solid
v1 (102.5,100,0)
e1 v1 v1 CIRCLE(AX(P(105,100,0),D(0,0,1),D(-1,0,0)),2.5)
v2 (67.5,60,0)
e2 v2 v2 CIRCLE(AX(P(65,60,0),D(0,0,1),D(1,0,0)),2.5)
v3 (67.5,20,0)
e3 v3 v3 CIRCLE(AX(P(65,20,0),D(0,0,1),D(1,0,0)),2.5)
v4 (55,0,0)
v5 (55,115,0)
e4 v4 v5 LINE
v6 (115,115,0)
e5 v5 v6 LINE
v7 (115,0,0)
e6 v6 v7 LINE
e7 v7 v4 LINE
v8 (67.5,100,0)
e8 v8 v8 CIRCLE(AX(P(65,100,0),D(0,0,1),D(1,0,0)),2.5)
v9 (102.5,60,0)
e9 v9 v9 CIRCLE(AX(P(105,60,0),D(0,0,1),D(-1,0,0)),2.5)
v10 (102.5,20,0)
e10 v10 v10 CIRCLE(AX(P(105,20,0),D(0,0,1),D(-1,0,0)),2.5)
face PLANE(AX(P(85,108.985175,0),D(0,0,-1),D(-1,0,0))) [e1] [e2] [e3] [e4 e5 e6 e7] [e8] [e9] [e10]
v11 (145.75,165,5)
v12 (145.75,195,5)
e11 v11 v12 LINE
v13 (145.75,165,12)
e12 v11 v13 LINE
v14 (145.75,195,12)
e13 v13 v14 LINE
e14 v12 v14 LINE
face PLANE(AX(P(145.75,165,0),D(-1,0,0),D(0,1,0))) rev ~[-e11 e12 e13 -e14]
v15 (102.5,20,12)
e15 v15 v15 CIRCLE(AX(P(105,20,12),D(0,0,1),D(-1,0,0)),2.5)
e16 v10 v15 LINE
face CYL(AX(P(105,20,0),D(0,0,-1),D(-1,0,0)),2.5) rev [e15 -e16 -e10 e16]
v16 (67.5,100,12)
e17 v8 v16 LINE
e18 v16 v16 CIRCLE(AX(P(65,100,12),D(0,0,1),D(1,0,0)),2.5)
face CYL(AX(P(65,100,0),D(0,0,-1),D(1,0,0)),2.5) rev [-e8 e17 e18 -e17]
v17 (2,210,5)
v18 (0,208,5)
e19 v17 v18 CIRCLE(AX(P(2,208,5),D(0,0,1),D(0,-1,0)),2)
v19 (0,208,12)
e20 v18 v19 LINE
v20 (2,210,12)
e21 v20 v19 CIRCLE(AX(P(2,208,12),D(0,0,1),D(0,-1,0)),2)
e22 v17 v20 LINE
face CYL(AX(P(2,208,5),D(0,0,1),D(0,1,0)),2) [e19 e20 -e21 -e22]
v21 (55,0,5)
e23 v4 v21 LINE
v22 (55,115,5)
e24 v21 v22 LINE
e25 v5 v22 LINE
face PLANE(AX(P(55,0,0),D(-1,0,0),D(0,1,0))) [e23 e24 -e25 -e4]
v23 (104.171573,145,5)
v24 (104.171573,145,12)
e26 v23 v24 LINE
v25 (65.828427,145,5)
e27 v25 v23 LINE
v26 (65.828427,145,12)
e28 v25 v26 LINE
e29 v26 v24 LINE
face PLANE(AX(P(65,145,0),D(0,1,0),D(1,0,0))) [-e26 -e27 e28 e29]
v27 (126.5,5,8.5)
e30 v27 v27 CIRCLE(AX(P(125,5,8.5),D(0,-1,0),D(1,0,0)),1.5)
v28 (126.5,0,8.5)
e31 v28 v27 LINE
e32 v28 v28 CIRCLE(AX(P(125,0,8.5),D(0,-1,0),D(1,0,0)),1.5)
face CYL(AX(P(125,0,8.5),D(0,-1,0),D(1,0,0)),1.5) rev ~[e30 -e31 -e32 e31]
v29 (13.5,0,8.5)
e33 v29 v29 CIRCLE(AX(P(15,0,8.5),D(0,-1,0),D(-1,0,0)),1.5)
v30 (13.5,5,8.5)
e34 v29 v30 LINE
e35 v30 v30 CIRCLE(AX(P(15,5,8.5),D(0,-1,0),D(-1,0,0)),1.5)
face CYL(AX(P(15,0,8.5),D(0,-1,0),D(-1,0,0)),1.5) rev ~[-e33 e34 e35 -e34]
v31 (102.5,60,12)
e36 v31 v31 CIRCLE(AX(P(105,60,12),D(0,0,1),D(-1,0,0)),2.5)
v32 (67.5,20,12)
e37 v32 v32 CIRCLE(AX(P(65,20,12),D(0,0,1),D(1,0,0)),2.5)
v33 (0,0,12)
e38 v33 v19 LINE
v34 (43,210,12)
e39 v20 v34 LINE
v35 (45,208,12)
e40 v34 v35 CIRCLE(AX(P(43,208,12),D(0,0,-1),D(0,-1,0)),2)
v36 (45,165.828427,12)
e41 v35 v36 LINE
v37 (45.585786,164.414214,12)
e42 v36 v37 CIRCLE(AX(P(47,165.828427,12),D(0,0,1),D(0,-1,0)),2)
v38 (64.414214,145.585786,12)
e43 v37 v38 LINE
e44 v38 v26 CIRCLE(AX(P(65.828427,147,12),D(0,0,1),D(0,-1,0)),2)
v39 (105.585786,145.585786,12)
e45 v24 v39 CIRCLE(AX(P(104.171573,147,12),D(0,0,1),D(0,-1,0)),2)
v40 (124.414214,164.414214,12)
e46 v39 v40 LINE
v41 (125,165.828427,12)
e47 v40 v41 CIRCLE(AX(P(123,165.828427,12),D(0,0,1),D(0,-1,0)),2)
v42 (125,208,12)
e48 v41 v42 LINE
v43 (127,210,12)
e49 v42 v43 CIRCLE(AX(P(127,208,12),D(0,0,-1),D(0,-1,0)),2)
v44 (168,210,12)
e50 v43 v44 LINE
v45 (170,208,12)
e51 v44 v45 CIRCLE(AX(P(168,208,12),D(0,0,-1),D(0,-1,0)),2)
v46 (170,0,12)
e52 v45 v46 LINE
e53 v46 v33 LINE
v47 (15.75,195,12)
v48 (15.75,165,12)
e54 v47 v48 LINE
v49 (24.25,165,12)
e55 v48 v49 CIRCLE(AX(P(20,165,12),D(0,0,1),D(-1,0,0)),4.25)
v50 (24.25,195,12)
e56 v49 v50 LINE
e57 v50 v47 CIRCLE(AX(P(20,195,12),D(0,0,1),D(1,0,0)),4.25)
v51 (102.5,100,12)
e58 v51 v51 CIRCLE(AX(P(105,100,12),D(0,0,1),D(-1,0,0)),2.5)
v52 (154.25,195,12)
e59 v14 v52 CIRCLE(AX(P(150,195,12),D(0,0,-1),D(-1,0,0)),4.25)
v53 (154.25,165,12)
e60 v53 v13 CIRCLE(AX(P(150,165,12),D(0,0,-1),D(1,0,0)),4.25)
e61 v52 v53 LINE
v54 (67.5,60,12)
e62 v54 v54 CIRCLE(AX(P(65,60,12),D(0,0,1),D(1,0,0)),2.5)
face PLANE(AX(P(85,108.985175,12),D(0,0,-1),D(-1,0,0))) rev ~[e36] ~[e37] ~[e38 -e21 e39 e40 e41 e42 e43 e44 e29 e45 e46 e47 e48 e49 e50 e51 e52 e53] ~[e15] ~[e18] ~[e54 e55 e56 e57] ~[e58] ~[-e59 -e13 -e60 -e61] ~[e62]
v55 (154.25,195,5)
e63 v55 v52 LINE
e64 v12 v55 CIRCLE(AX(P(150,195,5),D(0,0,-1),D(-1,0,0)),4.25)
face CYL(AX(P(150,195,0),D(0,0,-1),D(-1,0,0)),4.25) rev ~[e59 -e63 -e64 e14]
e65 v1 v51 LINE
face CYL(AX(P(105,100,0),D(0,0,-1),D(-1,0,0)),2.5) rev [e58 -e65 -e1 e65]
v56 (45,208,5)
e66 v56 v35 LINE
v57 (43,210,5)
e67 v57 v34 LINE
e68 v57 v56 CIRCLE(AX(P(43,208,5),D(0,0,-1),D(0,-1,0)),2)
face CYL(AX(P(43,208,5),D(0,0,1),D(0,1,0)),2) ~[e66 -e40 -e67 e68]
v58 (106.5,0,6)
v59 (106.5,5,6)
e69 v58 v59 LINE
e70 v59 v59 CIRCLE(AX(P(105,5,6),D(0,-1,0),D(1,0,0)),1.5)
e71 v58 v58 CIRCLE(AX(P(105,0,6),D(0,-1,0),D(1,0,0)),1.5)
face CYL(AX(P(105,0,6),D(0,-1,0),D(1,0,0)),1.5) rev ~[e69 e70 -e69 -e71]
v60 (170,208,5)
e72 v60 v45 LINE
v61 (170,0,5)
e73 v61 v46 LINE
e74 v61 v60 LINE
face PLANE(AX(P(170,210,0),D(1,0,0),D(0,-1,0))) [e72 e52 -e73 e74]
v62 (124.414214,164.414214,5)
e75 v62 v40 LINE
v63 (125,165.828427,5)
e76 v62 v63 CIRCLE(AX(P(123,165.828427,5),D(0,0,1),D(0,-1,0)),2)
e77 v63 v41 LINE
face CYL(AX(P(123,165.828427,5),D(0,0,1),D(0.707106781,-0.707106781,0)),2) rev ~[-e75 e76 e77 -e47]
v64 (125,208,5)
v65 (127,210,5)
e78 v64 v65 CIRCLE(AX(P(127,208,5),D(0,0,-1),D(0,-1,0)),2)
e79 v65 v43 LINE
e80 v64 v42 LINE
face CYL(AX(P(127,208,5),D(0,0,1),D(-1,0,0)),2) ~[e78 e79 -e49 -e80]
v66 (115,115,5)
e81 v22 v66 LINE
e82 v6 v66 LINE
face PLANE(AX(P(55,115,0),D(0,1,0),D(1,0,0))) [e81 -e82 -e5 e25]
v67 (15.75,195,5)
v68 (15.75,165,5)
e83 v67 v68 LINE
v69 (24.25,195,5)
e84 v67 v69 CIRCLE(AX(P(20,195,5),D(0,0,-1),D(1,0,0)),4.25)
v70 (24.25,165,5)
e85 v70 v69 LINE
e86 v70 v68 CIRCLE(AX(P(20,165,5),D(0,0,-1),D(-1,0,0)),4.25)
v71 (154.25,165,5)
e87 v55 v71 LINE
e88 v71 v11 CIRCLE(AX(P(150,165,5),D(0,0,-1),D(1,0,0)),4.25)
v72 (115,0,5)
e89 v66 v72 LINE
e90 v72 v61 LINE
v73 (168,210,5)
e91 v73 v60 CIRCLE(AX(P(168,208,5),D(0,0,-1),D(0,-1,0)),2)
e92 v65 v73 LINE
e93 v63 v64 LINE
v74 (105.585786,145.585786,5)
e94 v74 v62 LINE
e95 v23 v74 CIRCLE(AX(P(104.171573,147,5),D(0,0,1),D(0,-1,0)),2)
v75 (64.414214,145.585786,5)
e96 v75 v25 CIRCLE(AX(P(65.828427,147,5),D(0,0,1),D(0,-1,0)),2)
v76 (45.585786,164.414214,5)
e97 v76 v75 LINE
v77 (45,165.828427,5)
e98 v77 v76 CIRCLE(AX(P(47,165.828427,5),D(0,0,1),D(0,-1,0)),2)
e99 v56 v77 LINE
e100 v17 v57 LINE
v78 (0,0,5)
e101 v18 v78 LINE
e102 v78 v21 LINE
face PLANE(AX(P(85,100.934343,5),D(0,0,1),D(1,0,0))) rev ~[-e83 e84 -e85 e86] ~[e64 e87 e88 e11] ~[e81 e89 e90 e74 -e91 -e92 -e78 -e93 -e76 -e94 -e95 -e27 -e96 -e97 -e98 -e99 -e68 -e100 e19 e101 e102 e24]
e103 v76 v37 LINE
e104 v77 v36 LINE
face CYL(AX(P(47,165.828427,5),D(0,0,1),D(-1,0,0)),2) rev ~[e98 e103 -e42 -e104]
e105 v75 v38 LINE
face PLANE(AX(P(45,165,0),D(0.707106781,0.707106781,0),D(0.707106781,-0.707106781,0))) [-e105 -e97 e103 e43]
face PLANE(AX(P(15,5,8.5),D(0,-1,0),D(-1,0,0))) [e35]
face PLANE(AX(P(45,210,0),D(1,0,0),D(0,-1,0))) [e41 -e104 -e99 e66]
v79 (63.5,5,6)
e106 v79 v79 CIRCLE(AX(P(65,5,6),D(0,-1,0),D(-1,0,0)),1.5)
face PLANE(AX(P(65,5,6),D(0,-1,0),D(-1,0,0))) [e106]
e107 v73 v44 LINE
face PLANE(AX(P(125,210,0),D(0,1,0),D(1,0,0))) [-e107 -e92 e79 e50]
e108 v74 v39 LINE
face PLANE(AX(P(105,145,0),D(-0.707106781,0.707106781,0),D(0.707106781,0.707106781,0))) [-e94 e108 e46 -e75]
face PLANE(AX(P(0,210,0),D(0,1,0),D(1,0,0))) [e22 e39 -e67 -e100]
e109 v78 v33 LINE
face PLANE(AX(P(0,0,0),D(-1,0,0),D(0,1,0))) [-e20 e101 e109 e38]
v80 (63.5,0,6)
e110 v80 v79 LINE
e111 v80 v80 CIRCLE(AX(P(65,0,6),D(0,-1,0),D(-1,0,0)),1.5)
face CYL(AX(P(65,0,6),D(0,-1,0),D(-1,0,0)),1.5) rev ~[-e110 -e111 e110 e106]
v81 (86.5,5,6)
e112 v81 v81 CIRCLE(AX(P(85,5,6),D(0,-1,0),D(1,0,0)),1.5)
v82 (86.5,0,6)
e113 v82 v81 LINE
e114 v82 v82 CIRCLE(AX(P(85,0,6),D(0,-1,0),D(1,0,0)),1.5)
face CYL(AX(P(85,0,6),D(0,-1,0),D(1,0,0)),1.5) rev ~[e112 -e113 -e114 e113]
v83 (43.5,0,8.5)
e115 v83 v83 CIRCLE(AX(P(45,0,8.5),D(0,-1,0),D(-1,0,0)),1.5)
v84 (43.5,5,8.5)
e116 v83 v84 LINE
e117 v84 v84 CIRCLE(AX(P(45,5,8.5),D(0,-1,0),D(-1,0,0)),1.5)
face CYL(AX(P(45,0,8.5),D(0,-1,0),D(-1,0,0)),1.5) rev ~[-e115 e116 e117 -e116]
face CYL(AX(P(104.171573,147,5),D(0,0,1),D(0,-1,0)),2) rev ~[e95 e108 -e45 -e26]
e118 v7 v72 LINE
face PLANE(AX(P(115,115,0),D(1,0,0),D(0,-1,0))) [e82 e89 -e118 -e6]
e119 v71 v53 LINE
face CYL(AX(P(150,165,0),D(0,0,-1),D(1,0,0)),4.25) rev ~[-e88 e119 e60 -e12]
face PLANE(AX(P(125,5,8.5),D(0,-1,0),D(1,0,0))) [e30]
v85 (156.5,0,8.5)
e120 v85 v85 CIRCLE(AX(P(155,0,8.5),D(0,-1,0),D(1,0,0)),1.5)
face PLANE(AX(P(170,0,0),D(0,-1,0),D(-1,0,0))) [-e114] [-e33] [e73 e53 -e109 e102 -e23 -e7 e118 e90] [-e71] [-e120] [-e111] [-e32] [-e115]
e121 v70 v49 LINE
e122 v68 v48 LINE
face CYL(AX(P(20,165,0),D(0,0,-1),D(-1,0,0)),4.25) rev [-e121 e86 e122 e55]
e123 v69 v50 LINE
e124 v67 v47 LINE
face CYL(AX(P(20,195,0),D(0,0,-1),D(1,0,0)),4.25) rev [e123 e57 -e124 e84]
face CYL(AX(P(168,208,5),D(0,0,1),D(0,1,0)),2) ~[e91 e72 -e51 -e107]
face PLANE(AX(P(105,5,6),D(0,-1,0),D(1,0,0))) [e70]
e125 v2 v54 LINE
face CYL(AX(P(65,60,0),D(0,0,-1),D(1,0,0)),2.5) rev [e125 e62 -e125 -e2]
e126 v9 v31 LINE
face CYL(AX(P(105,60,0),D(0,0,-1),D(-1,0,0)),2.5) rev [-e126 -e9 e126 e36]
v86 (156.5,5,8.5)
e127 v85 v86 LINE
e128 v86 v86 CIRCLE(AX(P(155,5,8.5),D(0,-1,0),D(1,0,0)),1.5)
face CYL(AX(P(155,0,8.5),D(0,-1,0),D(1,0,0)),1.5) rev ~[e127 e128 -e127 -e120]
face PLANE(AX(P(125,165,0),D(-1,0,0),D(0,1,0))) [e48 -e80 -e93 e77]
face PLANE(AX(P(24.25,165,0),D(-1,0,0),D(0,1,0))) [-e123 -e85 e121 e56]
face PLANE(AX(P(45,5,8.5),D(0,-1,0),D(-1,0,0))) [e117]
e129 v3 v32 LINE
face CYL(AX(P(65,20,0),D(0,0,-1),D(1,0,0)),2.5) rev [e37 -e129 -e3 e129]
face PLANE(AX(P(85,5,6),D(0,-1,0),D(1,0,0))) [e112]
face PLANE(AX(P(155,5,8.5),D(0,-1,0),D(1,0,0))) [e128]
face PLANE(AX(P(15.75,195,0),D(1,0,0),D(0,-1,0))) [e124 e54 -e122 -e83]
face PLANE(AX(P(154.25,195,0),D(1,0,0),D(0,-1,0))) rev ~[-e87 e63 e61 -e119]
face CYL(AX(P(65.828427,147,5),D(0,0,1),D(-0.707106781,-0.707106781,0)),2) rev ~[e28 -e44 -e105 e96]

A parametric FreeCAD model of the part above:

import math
import FreeCAD as App
import Part
import Sketcher
Q = App.Units.Quantity


def edges_at(feature, points):
    """Names of the edges that pass closest to the given points."""
    edges = feature.Shape.Edges
    near = lambda p: min(range(len(edges)), key=lambda i: edges[i].distToShape(Part.Vertex(*p))[0])
    return sorted({f"Edge{near(p) + 1}" for p in points})


def add_polygon(sketch, points):
    """Adds a closed chain of lines whose ends are joined by coincident constraints."""
    first, n = sketch.GeometryCount, len(points)
    for a, b in zip(points, points[1:] + points[:1]):
        sketch.addGeometry(Part.LineSegment(App.Vector(*a, 0), App.Vector(*b, 0)), False)
    for i in range(n):
        sketch.addConstraint(Sketcher.Constraint("Coincident", first + i, 2, first + (i + 1) % n, 1))

doc = App.newDocument("Part")
params = doc.addObject("Spreadsheet::Sheet", "Params")
for row, (alias, value) in enumerate([
    ("sketch1_diameter", "5 mm"),
    ("sketch1_width", "45 mm"),
    ("sketch1_width2", "170 mm"),
    ("sketch1_width3", "40 mm"),
    ("sketch1_height", "210 mm"),
    ("pad1_length", "12 mm"),
    ("sketch2_width", "55 mm"),
    ("sketch2_width2", "170 mm"),
    ("sketch2_height", "210 mm"),
    ("sketch2_height2", "115 mm"),
    ("pocket1_length", "5 mm"),
    ("fillet_radius", "2 mm"),
    ("sketch3_diameter", "3 mm"),
    ("pocket2_length", "5 mm"),
], start=1):
    params.set(f"A{row}", alias)
    params.set(f"B{row}", "=" + value)
    params.setAlias(f"B{row}", alias)

body = doc.addObject("PartDesign::Body", "Body")

sketch1 = body.newObject("Sketcher::SketchObject", "Sketch")
sketch1.AttachmentSupport = (doc.getObject("XY_Plane"), [""])
sketch1.MapMode = "FlatFace"
add_polygon(sketch1, [(45, 210), (0, 210), (0, 0), (170, 0), (170, 210), (125, 210), (125, 165), (105, 145), (65, 145), (45, 165)])
sketch1.addGeometry(Part.Circle(App.Vector(105, 20, 0), App.Vector(0, 0, 1), 2.5), False)
sketch1.addGeometry(Part.Circle(App.Vector(105, 60, 0), App.Vector(0, 0, 1), 2.5), False)
sketch1.addGeometry(Part.Circle(App.Vector(105, 100, 0), App.Vector(0, 0, 1), 2.5), False)
sketch1.addGeometry(Part.Circle(App.Vector(65, 20, 0), App.Vector(0, 0, 1), 2.5), False)
sketch1.addGeometry(Part.Circle(App.Vector(65, 60, 0), App.Vector(0, 0, 1), 2.5), False)
sketch1.addGeometry(Part.Circle(App.Vector(65, 100, 0), App.Vector(0, 0, 1), 2.5), False)
sketch1.addGeometry(Part.LineSegment(App.Vector(154.2, 195, 0), App.Vector(154.2, 165, 0)), False)
sketch1.addGeometry(Part.ArcOfCircle(Part.Circle(App.Vector(150, 165, 0), App.Vector(0, 0, 1), 4.2), math.radians(180), math.radians(360)), False)
sketch1.addGeometry(Part.LineSegment(App.Vector(145.8, 165, 0), App.Vector(145.8, 195, 0)), False)
sketch1.addGeometry(Part.ArcOfCircle(Part.Circle(App.Vector(150, 195, 0), App.Vector(0, 0, 1), 4.2), math.radians(0), math.radians(180)), False)
sketch1.addGeometry(Part.ArcOfCircle(Part.Circle(App.Vector(20, 195, 0), App.Vector(0, 0, 1), 4.2), math.radians(0), math.radians(180)), False)
sketch1.addGeometry(Part.LineSegment(App.Vector(24.2, 195, 0), App.Vector(24.2, 165, 0)), False)
sketch1.addGeometry(Part.ArcOfCircle(Part.Circle(App.Vector(20, 165, 0), App.Vector(0, 0, 1), 4.2), math.radians(180), math.radians(360)), False)
sketch1.addGeometry(Part.LineSegment(App.Vector(15.8, 165, 0), App.Vector(15.8, 195, 0)), False)
sketch1.addConstraint([
    Sketcher.Constraint("Tangent", 16, 2, 17, 2),
    Sketcher.Constraint("Tangent", 17, 1, 18, 1),
    Sketcher.Constraint("Tangent", 18, 2, 19, 2),
    Sketcher.Constraint("Tangent", 19, 1, 16, 1),
    Sketcher.Constraint("Tangent", 20, 1, 21, 1),
    Sketcher.Constraint("Tangent", 21, 2, 22, 2),
    Sketcher.Constraint("Tangent", 22, 1, 23, 1),
    Sketcher.Constraint("Tangent", 23, 2, 20, 2),
    Sketcher.Constraint("Horizontal", 0),
    Sketcher.Constraint("Vertical", 1),
    Sketcher.Constraint("Horizontal", 2),
    Sketcher.Constraint("Vertical", 3),
    Sketcher.Constraint("Horizontal", 4),
    Sketcher.Constraint("Vertical", 5),
    Sketcher.Constraint("Horizontal", 7),
    Sketcher.Constraint("Vertical", 9),
    Sketcher.Constraint("Vertical", 16),
    Sketcher.Constraint("Vertical", 18),
    Sketcher.Constraint("Vertical", 21),
    Sketcher.Constraint("Vertical", 23),
    Sketcher.Constraint("Coincident", 1, 2, -1, 1),
    Sketcher.Constraint("Equal", 10, 11),
    Sketcher.Constraint("Equal", 11, 12),
    Sketcher.Constraint("Equal", 12, 13),
    Sketcher.Constraint("Equal", 13, 14),
    Sketcher.Constraint("Equal", 14, 15),
    Sketcher.Constraint("Equal", 19, 20),
    Sketcher.Constraint("Perpendicular", 6, 8),
    Sketcher.Constraint("Horizontal", 10, 3, 13, 3),
    Sketcher.Constraint("Horizontal", 11, 3, 14, 3),
    Sketcher.Constraint("Horizontal", 12, 3, 15, 3),
    Sketcher.Constraint("Horizontal", 19, 3, 20, 3),
    Sketcher.Constraint("Horizontal", 17, 3, 22, 3),
    Sketcher.Constraint("Horizontal", 0, 2, 3, 2),
    Sketcher.Constraint("Horizontal", 22, 3, 5, 2),
    Sketcher.Constraint("Horizontal", 5, 2, 8, 2),
    Sketcher.Constraint("Vertical", 10, 3, 11, 3),
    Sketcher.Constraint("Vertical", 11, 3, 12, 3),
    Sketcher.Constraint("Vertical", 13, 3, 14, 3),
    Sketcher.Constraint("Vertical", 14, 3, 15, 3),
    Sketcher.Constraint("Vertical", 12, 3, 6, 2),
    Sketcher.Constraint("Vertical", 15, 3, 7, 2),
    Sketcher.Constraint("Equal", 0, 4),
    Sketcher.Constraint("Equal", 4, 5),
    Sketcher.Constraint("Equal", 6, 8),
    Sketcher.Constraint("Diameter", 10, Q("5 mm")),
    Sketcher.Constraint("DistanceX", 0, 2, 0, 1, Q("45 mm")),
    Sketcher.Constraint("DistanceX", 2, 1, 2, 2, Q("170 mm")),
    Sketcher.Constraint("DistanceX", 7, 2, 7, 1, Q("40 mm")),
    Sketcher.Constraint("DistanceY", 1, 2, 1, 1, Q("210 mm")),
    Sketcher.Constraint("DistanceY", 16, 2, 16, 1, Q("30 mm")),
    Sketcher.Constraint("Radius", 17, Q("4.25 mm")),
    Sketcher.Constraint("DistanceY", -1, 1, 10, 3, Q("20 mm")),
    Sketcher.Constraint("DistanceY", -1, 1, 11, 3, Q("60 mm")),
    Sketcher.Constraint("DistanceY", -1, 1, 12, 3, Q("100 mm")),
    Sketcher.Constraint("DistanceX", -1, 1, 17, 3, Q("150 mm")),
    Sketcher.Constraint("DistanceX", -1, 1, 20, 3, Q("20 mm")),
])
sketch1.setExpression("Constraints[55]", "Params.sketch1_diameter")
sketch1.setExpression("Constraints[56]", "Params.sketch1_width")
sketch1.setExpression("Constraints[57]", "Params.sketch1_width2")
sketch1.setExpression("Constraints[58]", "Params.sketch1_width3")
sketch1.setExpression("Constraints[59]", "Params.sketch1_height")
pad1 = body.newObject("PartDesign::Pad", "Pad")
pad1.Profile = sketch1
pad1.setExpression("Length", "Params.pad1_length")

sketch2 = body.newObject("Sketcher::SketchObject", "Sketch001")
sketch2.AttachmentSupport = (doc.getObject("XY_Plane"), [""])
sketch2.MapMode = "FlatFace"
add_polygon(sketch2, [(55, 0), (0, 0), (0, 210), (170, 210), (170, 0), (115, 0), (115, 115), (55, 115)])
sketch2.addConstraint([
    Sketcher.Constraint("Horizontal", 0),
    Sketcher.Constraint("Vertical", 1),
    Sketcher.Constraint("Horizontal", 2),
    Sketcher.Constraint("Vertical", 3),
    Sketcher.Constraint("Horizontal", 4),
    Sketcher.Constraint("Vertical", 5),
    Sketcher.Constraint("Horizontal", 6),
    Sketcher.Constraint("Vertical", 7),
    Sketcher.Constraint("Coincident", 0, 2, -1, 1),
    Sketcher.Constraint("PointOnObject", 3, 2, -1),
    Sketcher.Constraint("Equal", 0, 4),
    Sketcher.Constraint("DistanceX", 0, 2, 0, 1, Q("55 mm")),
    Sketcher.Constraint("DistanceX", 2, 1, 2, 2, Q("170 mm")),
    Sketcher.Constraint("DistanceY", 1, 1, 1, 2, Q("210 mm")),
    Sketcher.Constraint("DistanceY", 5, 1, 5, 2, Q("115 mm")),
])
sketch2.setExpression("Constraints[19]", "Params.sketch2_width")
sketch2.setExpression("Constraints[20]", "Params.sketch2_width2")
sketch2.setExpression("Constraints[21]", "Params.sketch2_height")
sketch2.setExpression("Constraints[22]", "Params.sketch2_height2")
pocket1 = body.newObject("PartDesign::Pocket", "Pocket")
pocket1.Profile = sketch2
pocket1.setExpression("Length", "Params.pocket1_length")
pocket1.Reversed = True
doc.recompute()

fillet = body.newObject("PartDesign::Fillet", "Fillet")
fillet.Base = (pocket1, edges_at(pocket1, [
    (0, 210, 8.5),
    (45, 210, 8.5),
    (45, 165, 8.5),
    (65, 145, 8.5),
    (105, 145, 8.5),
    (125, 165, 8.5),
    (125, 210, 8.5),
    (170, 210, 8.5),
]))
fillet.setExpression("Radius", "Params.fillet_radius")

sketch3 = body.newObject("Sketcher::SketchObject", "Sketch002")
sketch3.AttachmentSupport = (doc.getObject("XZ_Plane"), [""])
sketch3.MapMode = "FlatFace"
sketch3.addGeometry([
    Part.Circle(App.Vector(85, 6, 0), App.Vector(0, 0, 1), 1.5),
    Part.Circle(App.Vector(105, 6, 0), App.Vector(0, 0, 1), 1.5),
    Part.Circle(App.Vector(155, 8.5, 0), App.Vector(0, 0, 1), 1.5),
    Part.Circle(App.Vector(125, 8.5, 0), App.Vector(0, 0, 1), 1.5),
    Part.Circle(App.Vector(15, 8.5, 0), App.Vector(0, 0, 1), 1.5),
    Part.Circle(App.Vector(45, 8.5, 0), App.Vector(0, 0, 1), 1.5),
    Part.Circle(App.Vector(65, 6, 0), App.Vector(0, 0, 1), 1.5),
], False)
sketch3.addConstraint([
    Sketcher.Constraint("Equal", 0, 1),
    Sketcher.Constraint("Equal", 1, 2),
    Sketcher.Constraint("Equal", 2, 3),
    Sketcher.Constraint("Equal", 3, 4),
    Sketcher.Constraint("Equal", 4, 5),
    Sketcher.Constraint("Equal", 5, 6),
    Sketcher.Constraint("Horizontal", 0, 3, 1, 3),
    Sketcher.Constraint("Horizontal", 2, 3, 3, 3),
    Sketcher.Constraint("Horizontal", 3, 3, 4, 3),
    Sketcher.Constraint("Horizontal", 4, 3, 5, 3),
    Sketcher.Constraint("Horizontal", 1, 3, 6, 3),
    Sketcher.Constraint("Diameter", 0, Q("3 mm")),
    Sketcher.Constraint("DistanceX", -1, 1, 0, 3, Q("85 mm")),
    Sketcher.Constraint("DistanceY", -1, 1, 0, 3, Q("6 mm")),
    Sketcher.Constraint("DistanceX", -1, 1, 1, 3, Q("105 mm")),
    Sketcher.Constraint("DistanceX", -1, 1, 2, 3, Q("155 mm")),
    Sketcher.Constraint("DistanceX", -1, 1, 3, 3, Q("125 mm")),
    Sketcher.Constraint("DistanceX", -1, 1, 4, 3, Q("15 mm")),
    Sketcher.Constraint("DistanceX", -1, 1, 5, 3, Q("45 mm")),
    Sketcher.Constraint("DistanceX", -1, 1, 6, 3, Q("65 mm")),
    Sketcher.Constraint("DistanceY", -1, 1, 2, 3, Q("8.5 mm")),
])
sketch3.setExpression("Constraints[11]", "Params.sketch3_diameter")
pocket2 = body.newObject("PartDesign::Pocket", "Pocket001")
pocket2.Profile = sketch3
pocket2.setExpression("Length", "Params.pocket2_length")

doc.recompute()
